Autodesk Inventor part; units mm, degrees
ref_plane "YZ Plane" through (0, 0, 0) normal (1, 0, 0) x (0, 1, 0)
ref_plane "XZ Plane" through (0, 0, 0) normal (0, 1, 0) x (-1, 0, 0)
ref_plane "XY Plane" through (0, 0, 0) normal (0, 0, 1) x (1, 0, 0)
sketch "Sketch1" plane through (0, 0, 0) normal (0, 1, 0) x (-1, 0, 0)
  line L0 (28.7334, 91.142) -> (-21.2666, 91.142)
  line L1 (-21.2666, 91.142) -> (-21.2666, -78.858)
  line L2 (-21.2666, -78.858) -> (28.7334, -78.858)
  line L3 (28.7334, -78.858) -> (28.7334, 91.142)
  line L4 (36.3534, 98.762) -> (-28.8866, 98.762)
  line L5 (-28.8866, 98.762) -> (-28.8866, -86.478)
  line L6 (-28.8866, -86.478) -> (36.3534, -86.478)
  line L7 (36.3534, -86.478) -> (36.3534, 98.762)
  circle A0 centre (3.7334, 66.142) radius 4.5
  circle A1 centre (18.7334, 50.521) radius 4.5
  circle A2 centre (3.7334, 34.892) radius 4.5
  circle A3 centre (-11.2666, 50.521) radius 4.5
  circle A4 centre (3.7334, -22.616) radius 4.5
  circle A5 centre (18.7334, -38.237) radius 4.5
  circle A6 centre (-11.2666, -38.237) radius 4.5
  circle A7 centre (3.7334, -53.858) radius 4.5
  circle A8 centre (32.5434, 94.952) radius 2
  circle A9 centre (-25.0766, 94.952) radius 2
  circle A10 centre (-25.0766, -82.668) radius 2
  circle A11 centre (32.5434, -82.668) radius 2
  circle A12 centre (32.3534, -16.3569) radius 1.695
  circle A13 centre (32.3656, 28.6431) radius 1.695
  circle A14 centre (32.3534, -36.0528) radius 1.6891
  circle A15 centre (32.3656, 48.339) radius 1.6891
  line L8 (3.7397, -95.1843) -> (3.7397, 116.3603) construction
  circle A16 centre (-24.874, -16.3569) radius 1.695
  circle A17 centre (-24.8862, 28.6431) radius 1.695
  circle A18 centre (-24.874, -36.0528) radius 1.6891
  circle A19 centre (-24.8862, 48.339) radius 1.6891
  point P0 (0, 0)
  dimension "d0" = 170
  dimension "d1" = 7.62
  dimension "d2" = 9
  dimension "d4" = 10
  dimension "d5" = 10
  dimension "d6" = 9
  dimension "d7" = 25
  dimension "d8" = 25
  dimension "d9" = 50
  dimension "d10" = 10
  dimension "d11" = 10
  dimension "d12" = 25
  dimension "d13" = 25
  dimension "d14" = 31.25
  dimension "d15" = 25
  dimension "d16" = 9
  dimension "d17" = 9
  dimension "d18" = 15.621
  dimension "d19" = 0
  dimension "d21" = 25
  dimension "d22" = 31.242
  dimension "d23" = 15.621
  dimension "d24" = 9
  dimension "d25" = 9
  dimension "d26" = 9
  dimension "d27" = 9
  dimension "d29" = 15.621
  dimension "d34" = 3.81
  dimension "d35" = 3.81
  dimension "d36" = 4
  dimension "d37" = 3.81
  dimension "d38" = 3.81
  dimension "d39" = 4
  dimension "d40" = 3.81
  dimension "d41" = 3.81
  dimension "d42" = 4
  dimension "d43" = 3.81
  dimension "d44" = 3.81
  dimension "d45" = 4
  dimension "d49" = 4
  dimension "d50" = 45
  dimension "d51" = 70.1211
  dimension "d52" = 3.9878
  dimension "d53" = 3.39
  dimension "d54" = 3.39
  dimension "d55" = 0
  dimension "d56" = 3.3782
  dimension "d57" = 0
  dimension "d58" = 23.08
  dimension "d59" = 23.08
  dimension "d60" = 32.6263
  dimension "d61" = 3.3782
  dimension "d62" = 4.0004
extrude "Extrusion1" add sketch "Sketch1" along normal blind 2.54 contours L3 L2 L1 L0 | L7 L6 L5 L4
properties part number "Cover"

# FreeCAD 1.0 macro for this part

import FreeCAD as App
import Part
import Sketcher
from FreeCAD import Vector

doc = App.newDocument("Part")
params = doc.addObject("Spreadsheet::Sheet", "Params")
for row, (alias, value) in enumerate([
    ("sketch1_diameter", "9 mm"),
    ("sketch1_diameter2", "4 mm"),
    ("sketch1_diameter3", "3.39 mm"),
    ("sketch1_width", "65.24 mm"),
    ("sketch1_height", "185.24 mm"),
    ("pad1_length", "2.54 mm"),
], start=1):
    params.set(f"A{row}", alias)
    params.set(f"B{row}", "=" + value)
    params.setAlias(f"B{row}", alias)

body = doc.addObject("PartDesign::Body", "Body")

sketch1 = doc.addObject("Sketcher::SketchObject", "Sketch")
body.addObject(sketch1)
sketch1.AttachmentSupport = (doc.XZ_Plane, [""])
sketch1.MapMode = "FlatFace"
sketch1.addGeometry(Part.LineSegment(Vector(-36.4, -86.5, 0), Vector(-36.4, 98.8, 0)), False)
sketch1.addGeometry(Part.LineSegment(Vector(-36.4, 98.8, 0), Vector(28.9, 98.8, 0)), False)
sketch1.addGeometry(Part.LineSegment(Vector(28.9, 98.8, 0), Vector(28.9, -86.5, 0)), False)
sketch1.addGeometry(Part.LineSegment(Vector(28.9, -86.5, 0), Vector(-36.4, -86.5, 0)), False)
sketch1.addGeometry(Part.Circle(Vector(11.3, -38.2, 0), Vector(0, 0, 1), 4.5), False)
sketch1.addGeometry(Part.Circle(Vector(-3.7, -53.9, 0), Vector(0, 0, 1), 4.5), False)
sketch1.addGeometry(Part.Circle(Vector(-3.7, -22.6, 0), Vector(0, 0, 1), 4.5), False)
sketch1.addGeometry(Part.Circle(Vector(-18.7, -38.2, 0), Vector(0, 0, 1), 4.5), False)
sketch1.addGeometry(Part.Circle(Vector(11.3, 50.5, 0), Vector(0, 0, 1), 4.5), False)
sketch1.addGeometry(Part.Circle(Vector(-3.7, 34.9, 0), Vector(0, 0, 1), 4.5), False)
sketch1.addGeometry(Part.Circle(Vector(-18.7, 50.5, 0), Vector(0, 0, 1), 4.5), False)
sketch1.addGeometry(Part.Circle(Vector(-3.7, 66.1, 0), Vector(0, 0, 1), 4.5), False)
sketch1.addGeometry(Part.Circle(Vector(25.1, -82.7, 0), Vector(0, 0, 1), 2), False)
sketch1.addGeometry(Part.Circle(Vector(24.9, -36.1, 0), Vector(0, 0, 1), 1.7), False)
sketch1.addGeometry(Part.Circle(Vector(24.9, -16.4, 0), Vector(0, 0, 1), 1.7), False)
sketch1.addGeometry(Part.Circle(Vector(-32.5, -82.7, 0), Vector(0, 0, 1), 2), False)
sketch1.addGeometry(Part.Circle(Vector(-32.4, -36.1, 0), Vector(0, 0, 1), 1.7), False)
sketch1.addGeometry(Part.Circle(Vector(-32.4, -16.4, 0), Vector(0, 0, 1), 1.7), False)
sketch1.addGeometry(Part.Circle(Vector(24.9, 28.6, 0), Vector(0, 0, 1), 1.7), False)
sketch1.addGeometry(Part.Circle(Vector(24.9, 48.3, 0), Vector(0, 0, 1), 1.7), False)
sketch1.addGeometry(Part.Circle(Vector(25.1, 95, 0), Vector(0, 0, 1), 2), False)
sketch1.addGeometry(Part.Circle(Vector(-32.5, 95, 0), Vector(0, 0, 1), 2), False)
sketch1.addGeometry(Part.Circle(Vector(-32.4, 28.6, 0), Vector(0, 0, 1), 1.7), False)
sketch1.addGeometry(Part.Circle(Vector(-32.4, 48.3, 0), Vector(0, 0, 1), 1.7), False)
sketch1.addConstraint(Sketcher.Constraint("Coincident", 0, 2, 1, 1))
sketch1.addConstraint(Sketcher.Constraint("Coincident", 1, 2, 2, 1))
sketch1.addConstraint(Sketcher.Constraint("Coincident", 2, 2, 3, 1))
sketch1.addConstraint(Sketcher.Constraint("Coincident", 3, 2, 0, 1))
sketch1.addConstraint(Sketcher.Constraint("Vertical", 0))
sketch1.addConstraint(Sketcher.Constraint("Horizontal", 1))
sketch1.addConstraint(Sketcher.Constraint("Vertical", 2))
sketch1.addConstraint(Sketcher.Constraint("Horizontal", 3))
sketch1.addConstraint(Sketcher.Constraint("Equal", 4, 5))
sketch1.addConstraint(Sketcher.Constraint("Equal", 5, 6))
sketch1.addConstraint(Sketcher.Constraint("Equal", 6, 7))
sketch1.addConstraint(Sketcher.Constraint("Equal", 7, 8))
sketch1.addConstraint(Sketcher.Constraint("Equal", 8, 9))
sketch1.addConstraint(Sketcher.Constraint("Equal", 9, 10))
sketch1.addConstraint(Sketcher.Constraint("Equal", 10, 11))
sketch1.addConstraint(Sketcher.Constraint("Equal", 12, 15))
sketch1.addConstraint(Sketcher.Constraint("Equal", 13, 16))
sketch1.addConstraint(Sketcher.Constraint("Equal", 14, 17))
sketch1.addConstraint(Sketcher.Constraint("Equal", 17, 18))
sketch1.addConstraint(Sketcher.Constraint("Equal", 16, 19))
sketch1.addConstraint(Sketcher.Constraint("Equal", 15, 20))
sketch1.addConstraint(Sketcher.Constraint("Equal", 20, 21))
sketch1.addConstraint(Sketcher.Constraint("Equal", 18, 22))
sketch1.addConstraint(Sketcher.Constraint("Equal", 19, 23))
sketch1.addConstraint(Sketcher.Constraint("Horizontal", 4, 3, 7, 3))
sketch1.addConstraint(Sketcher.Constraint("Horizontal", 8, 3, 10, 3))
sketch1.addConstraint(Sketcher.Constraint("Horizontal", 12, 3, 15, 3))
sketch1.addConstraint(Sketcher.Constraint("Horizontal", 13, 3, 16, 3))
sketch1.addConstraint(Sketcher.Constraint("Horizontal", 14, 3, 17, 3))
sketch1.addConstraint(Sketcher.Constraint("Horizontal", 20, 3, 21, 3))
sketch1.addConstraint(Sketcher.Constraint("Horizontal", 18, 3, 22, 3))
sketch1.addConstraint(Sketcher.Constraint("Horizontal", 19, 3, 23, 3))
sketch1.addConstraint(Sketcher.Constraint("Vertical", 5, 3, 6, 3))
sketch1.addConstraint(Sketcher.Constraint("Vertical", 4, 3, 8, 3))
sketch1.addConstraint(Sketcher.Constraint("Vertical", 6, 3, 9, 3))
sketch1.addConstraint(Sketcher.Constraint("Vertical", 7, 3, 10, 3))
sketch1.addConstraint(Sketcher.Constraint("Vertical", 9, 3, 11, 3))
sketch1.addConstraint(Sketcher.Constraint("Vertical", 13, 3, 14, 3))
sketch1.addConstraint(Sketcher.Constraint("Vertical", 16, 3, 17, 3))
sketch1.addConstraint(Sketcher.Constraint("Vertical", 18, 3, 19, 3))
sketch1.addConstraint(Sketcher.Constraint("Vertical", 12, 3, 20, 3))
sketch1.addConstraint(Sketcher.Constraint("Vertical", 15, 3, 21, 3))
sketch1.addConstraint(Sketcher.Constraint("Vertical", 22, 3, 23, 3))
sketch1.addConstraint(Sketcher.Constraint("Diameter", 4, 9.0))
sketch1.addConstraint(Sketcher.Constraint("Diameter", 12, 4.0))
sketch1.addConstraint(Sketcher.Constraint("Diameter", 14, 3.39))
sketch1.addConstraint(Sketcher.Constraint("DistanceY", 14, 3, 18, 3, 45.0))
sketch1.addConstraint(Sketcher.Constraint("DistanceX", 3, 2, 16, 3, 4.0))
sketch1.addConstraint(Sketcher.Constraint("Diameter", 13, 3.3782))
sketch1.addConstraint(Sketcher.Constraint("DistanceY", 9, 3, 11, 3, 31.25))
sketch1.addConstraint(Sketcher.Constraint("DistanceX", 0, 2, 21, 3, 3.81))
sketch1.addConstraint(Sketcher.Constraint("DistanceY", 21, 3, 0, 2, 3.81))
sketch1.addConstraint(Sketcher.Constraint("DistanceX", 20, 3, 1, 2, 3.81))
sketch1.addConstraint(Sketcher.Constraint("DistanceY", 2, 2, 12, 3, 3.81))
sketch1.addConstraint(Sketcher.Constraint("DistanceX", 5, 3, 4, 3, 15.0))
sketch1.addConstraint(Sketcher.Constraint("DistanceY", 5, 3, 4, 3, 15.621))
sketch1.addConstraint(Sketcher.Constraint("DistanceY", 4, 3, 6, 3, 15.621))
sketch1.addConstraint(Sketcher.Constraint("DistanceX", 7, 3, 5, 3, 15.0))
sketch1.addConstraint(Sketcher.Constraint("DistanceY", 8, 3, 11, 3, 15.621))
sketch1.addConstraint(Sketcher.Constraint("DistanceX", 1, 1, 1, 2, 65.24))
sketch1.addConstraint(Sketcher.Constraint("DistanceY", 0, 1, 0, 2, 185.24))
sketch1.addConstraint(Sketcher.Constraint("DistanceX", 0, 2, 23, 3, 3.9878))
sketch1.addConstraint(Sketcher.Constraint("DistanceX", 19, 3, 1, 2, 4.0004))
sketch1.addConstraint(Sketcher.Constraint("DistanceY", 5, 3, 9, 3, 88.75))
sketch1.addConstraint(Sketcher.Constraint("DistanceX", 5, 3, 12, 3, 28.81))
sketch1.addConstraint(Sketcher.Constraint("DistanceY", 12, 3, 5, 3, 28.81))
sketch1.addConstraint(Sketcher.Constraint("DistanceY", 4, 3, 14, 3, 21.88))
sketch1.addConstraint(Sketcher.Constraint("DistanceY", 4, 3, -1, 1, 38.237))
sketch1.addConstraint(Sketcher.Constraint("DistanceX", -1, 1, 13, 3, 24.874))
sketch1.addConstraint(Sketcher.Constraint("DistanceY", -1, 1, 19, 3, 48.339))
sketch1.addConstraint(Sketcher.Constraint("DistanceY", 13, 3, 14, 3, 19.696))
sketch1.addConstraint(Sketcher.Constraint("DistanceX", -1, 1, 4, 3, 11.2666))
sketch1.setExpression("Constraints[43]", "Params.sketch1_diameter")
sketch1.setExpression("Constraints[44]", "Params.sketch1_diameter2")
sketch1.setExpression("Constraints[45]", "Params.sketch1_diameter3")
sketch1.setExpression("Constraints[59]", "Params.sketch1_width")
sketch1.setExpression("Constraints[60]", "Params.sketch1_height")
pad1 = doc.addObject("PartDesign::Pad", "Pad")
body.addObject(pad1)
pad1.Profile = sketch1
pad1.setExpression("Length", "Params.pad1_length")
pad1.Reversed = True

doc.recompute()
